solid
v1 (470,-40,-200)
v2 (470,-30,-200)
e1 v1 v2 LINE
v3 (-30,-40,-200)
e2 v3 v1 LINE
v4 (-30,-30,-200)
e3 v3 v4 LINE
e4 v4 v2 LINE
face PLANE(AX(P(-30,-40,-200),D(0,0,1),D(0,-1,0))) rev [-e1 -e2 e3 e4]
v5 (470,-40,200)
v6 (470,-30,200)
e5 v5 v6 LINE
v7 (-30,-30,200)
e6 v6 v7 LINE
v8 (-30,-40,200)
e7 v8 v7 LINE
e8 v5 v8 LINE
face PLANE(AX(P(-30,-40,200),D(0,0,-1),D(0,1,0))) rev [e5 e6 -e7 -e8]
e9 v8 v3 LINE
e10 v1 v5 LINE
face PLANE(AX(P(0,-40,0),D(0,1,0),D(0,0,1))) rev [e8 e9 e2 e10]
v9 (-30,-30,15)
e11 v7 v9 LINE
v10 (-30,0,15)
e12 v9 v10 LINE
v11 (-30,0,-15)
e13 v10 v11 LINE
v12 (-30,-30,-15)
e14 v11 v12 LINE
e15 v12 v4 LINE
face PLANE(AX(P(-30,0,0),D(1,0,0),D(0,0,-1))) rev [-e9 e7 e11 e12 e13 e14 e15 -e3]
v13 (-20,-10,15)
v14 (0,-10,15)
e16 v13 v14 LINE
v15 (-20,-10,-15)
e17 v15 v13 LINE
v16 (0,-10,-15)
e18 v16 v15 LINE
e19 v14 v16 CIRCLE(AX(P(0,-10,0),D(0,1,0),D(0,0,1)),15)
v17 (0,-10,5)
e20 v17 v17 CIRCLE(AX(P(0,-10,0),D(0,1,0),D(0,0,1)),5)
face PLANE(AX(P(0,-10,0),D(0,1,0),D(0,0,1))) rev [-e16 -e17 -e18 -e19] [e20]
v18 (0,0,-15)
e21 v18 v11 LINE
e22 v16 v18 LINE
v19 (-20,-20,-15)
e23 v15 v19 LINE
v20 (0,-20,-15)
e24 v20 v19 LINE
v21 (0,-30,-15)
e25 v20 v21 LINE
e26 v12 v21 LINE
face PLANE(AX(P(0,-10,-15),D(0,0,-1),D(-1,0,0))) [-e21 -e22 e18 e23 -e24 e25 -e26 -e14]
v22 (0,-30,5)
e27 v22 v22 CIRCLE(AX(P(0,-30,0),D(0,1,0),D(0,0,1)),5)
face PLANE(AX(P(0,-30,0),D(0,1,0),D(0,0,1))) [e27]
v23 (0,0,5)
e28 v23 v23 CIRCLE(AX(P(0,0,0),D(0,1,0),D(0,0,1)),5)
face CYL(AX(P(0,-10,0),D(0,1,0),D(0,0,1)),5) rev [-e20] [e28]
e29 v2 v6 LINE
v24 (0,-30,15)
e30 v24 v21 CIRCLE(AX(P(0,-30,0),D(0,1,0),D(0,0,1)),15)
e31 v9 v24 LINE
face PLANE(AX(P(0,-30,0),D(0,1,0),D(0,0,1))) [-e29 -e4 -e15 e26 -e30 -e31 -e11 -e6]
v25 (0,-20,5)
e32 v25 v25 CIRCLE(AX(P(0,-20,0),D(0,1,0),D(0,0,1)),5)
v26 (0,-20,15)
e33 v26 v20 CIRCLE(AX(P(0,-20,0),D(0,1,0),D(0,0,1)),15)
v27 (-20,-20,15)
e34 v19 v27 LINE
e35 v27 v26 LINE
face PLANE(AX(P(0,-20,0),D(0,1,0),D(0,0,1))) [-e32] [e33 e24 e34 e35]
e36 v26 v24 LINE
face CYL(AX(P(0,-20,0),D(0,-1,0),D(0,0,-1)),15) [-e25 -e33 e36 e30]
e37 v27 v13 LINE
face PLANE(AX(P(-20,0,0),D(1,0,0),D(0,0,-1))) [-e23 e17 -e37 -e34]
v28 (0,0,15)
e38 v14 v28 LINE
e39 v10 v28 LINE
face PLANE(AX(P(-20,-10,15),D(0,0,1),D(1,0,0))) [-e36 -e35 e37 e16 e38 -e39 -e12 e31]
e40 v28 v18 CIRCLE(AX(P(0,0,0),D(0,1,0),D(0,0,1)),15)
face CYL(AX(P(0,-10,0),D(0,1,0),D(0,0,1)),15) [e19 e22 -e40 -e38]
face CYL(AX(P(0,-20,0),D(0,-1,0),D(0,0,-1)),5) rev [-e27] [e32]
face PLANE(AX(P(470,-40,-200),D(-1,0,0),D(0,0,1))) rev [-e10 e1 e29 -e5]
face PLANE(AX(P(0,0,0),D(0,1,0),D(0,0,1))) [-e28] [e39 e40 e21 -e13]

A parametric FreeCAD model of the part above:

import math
import FreeCAD as App
import Part
import Sketcher
from FreeCAD import Vector
Q = App.Units.Quantity


def add_polygon(sketch, points):
    """Adds a closed chain of lines whose ends are joined by coincident constraints."""
    first, n = sketch.GeometryCount, len(points)
    for a, b in zip(points, points[1:] + points[:1]):
        sketch.addGeometry(Part.LineSegment(App.Vector(*a, 0), App.Vector(*b, 0)), False)
    for i in range(n):
        sketch.addConstraint(Sketcher.Constraint("Coincident", first + i, 2, first + (i + 1) % n, 1))

doc = App.newDocument("Part")
body = doc.addObject("PartDesign::Body", "Body")

# Sketch on XZ plane
sketch1 = doc.addObject("Sketcher::SketchObject", "Sketch")
body.addObject(sketch1)
sketch1.AttachmentSupport = (doc.XZ_Plane, [""])
sketch1.MapMode = "FlatFace"
sketch1.addGeometry([
    Part.LineSegment(Vector(0, -15, 0), Vector(-20, -15, 0)),  # 0
    Part.LineSegment(Vector(-20, -15, 0), Vector(-20, 15, 0)),  # 1
    Part.LineSegment(Vector(-20, 15, 0), Vector(0, 15, 0)),  # 2
    Part.ArcOfCircle(Part.Circle(Vector(0, 0, 0), Vector(0, 0, 1), 15), math.radians(-90), math.radians(90)),  # 3
    Part.Circle(Vector(0, 0, 0), Vector(0, 0, 1), 5),  # 4
], False)
sketch1.addConstraint([
    Sketcher.Constraint("Coincident", 0, 2, 1, 1),
    Sketcher.Constraint("Coincident", 1, 2, 2, 1),
    Sketcher.Constraint("Tangent", 2, 2, 3, 2),
    Sketcher.Constraint("Tangent", 3, 1, 0, 1),
    Sketcher.Constraint("Horizontal", 0),
    Sketcher.Constraint("Vertical", 1),
    Sketcher.Constraint("Horizontal", 2),
    Sketcher.Constraint("Coincident", 3, 3, -1, 1),
    Sketcher.Constraint("Coincident", 4, 3, -1, 1),
    Sketcher.Constraint("Diameter", 4, Q("10 mm")),
    Sketcher.Constraint("Radius", 3, Q("15 mm")),
    Sketcher.Constraint("DistanceX", 0, 2, 0, 1, Q("20 mm")),
])
pad1 = doc.addObject("PartDesign::Pad", "Pad")
body.addObject(pad1)
pad1.Profile = sketch1
pad1.Length = 10

# Sketch on YZ plane
sketch2 = doc.addObject("Sketcher::SketchObject", "Sketch001")
body.addObject(sketch2)
sketch2.AttachmentSupport = (doc.YZ_Plane, [""])
sketch2.MapMode = "FlatFace"
sketch2.AttachmentOffset = App.Placement(Vector(0, 0, -20), App.Rotation())
add_polygon(sketch2, [(0, -15), (-30, -15), (-30, 15), (0, 15)])  # lines 0-3
sketch2.addConstraint([
    Sketcher.Constraint("Horizontal", 0),
    Sketcher.Constraint("Vertical", 1),
    Sketcher.Constraint("Horizontal", 2),
    Sketcher.Constraint("Vertical", 3),
    Sketcher.Constraint("Symmetric", 2, 2, 3, 2, -1, 1),
    Sketcher.Constraint("Equal", 2, 1),
    Sketcher.Constraint("DistanceX", 0, 2, 0, 1, Q("30 mm")),
])
pad2 = doc.addObject("PartDesign::Pad", "Pad001")
body.addObject(pad2)
pad2.Profile = sketch2
pad2.Length = 10
pad2.Reversed = True

# Sketch on XZ plane
sketch3 = doc.addObject("Sketcher::SketchObject", "Sketch002")
body.addObject(sketch3)
sketch3.AttachmentSupport = (doc.XZ_Plane, [""])
sketch3.MapMode = "FlatFace"
sketch3.AttachmentOffset = App.Placement(Vector(0, 0, 20), App.Rotation())
sketch3.addGeometry([
    Part.LineSegment(Vector(0, -15, 0), Vector(-20, -15, 0)),  # 0
    Part.LineSegment(Vector(-20, -15, 0), Vector(-20, 15, 0)),  # 1
    Part.LineSegment(Vector(-20, 15, 0), Vector(0, 15, 0)),  # 2
    Part.ArcOfCircle(Part.Circle(Vector(0, 0, 0), Vector(0, 0, 1), 15), math.radians(-90), math.radians(90)),  # 3
    Part.Circle(Vector(0, 0, 0), Vector(0, 0, 1), 5),  # 4
], False)
sketch3.addConstraint([
    Sketcher.Constraint("Coincident", 0, 2, 1, 1),
    Sketcher.Constraint("Coincident", 1, 2, 2, 1),
    Sketcher.Constraint("Tangent", 2, 2, 3, 2),
    Sketcher.Constraint("Tangent", 3, 1, 0, 1),
    Sketcher.Constraint("Horizontal", 0),
    Sketcher.Constraint("Vertical", 1),
    Sketcher.Constraint("Horizontal", 2),
    Sketcher.Constraint("Coincident", 3, 3, -1, 1),
    Sketcher.Constraint("Coincident", 4, 3, -1, 1),
    Sketcher.Constraint("Diameter", 4, Q("10 mm")),
    Sketcher.Constraint("Radius", 3, Q("15 mm")),
    Sketcher.Constraint("DistanceX", 0, 2, 0, 1, Q("20 mm")),
])
pad3 = doc.addObject("PartDesign::Pad", "Pad002")
body.addObject(pad3)
pad3.Profile = sketch3
pad3.Length = 10

# Sketch on XZ plane
sketch4 = doc.addObject("Sketcher::SketchObject", "Sketch003")
body.addObject(sketch4)
sketch4.AttachmentSupport = (doc.XZ_Plane, [""])
sketch4.MapMode = "FlatFace"
sketch4.AttachmentOffset = App.Placement(Vector(0, 0, 30), App.Rotation())
add_polygon(sketch4, [(-30, 200), (-30, -200), (470, -200), (470, 200)])  # lines 0-3
sketch4.addConstraint([
    Sketcher.Constraint("Vertical", 0),
    Sketcher.Constraint("Horizontal", 1),
    Sketcher.Constraint("Vertical", 2),
    Sketcher.Constraint("Horizontal", 3),
    Sketcher.Constraint("DistanceX", 1, 1, 1, 2, Q("500 mm")),
    Sketcher.Constraint("DistanceY", 0, 2, 0, 1, Q("400 mm")),
    Sketcher.Constraint("DistanceX", 0, 2, -1, 1, Q("30 mm")),
    Sketcher.Constraint("DistanceY", 0, 2, -1, 1, Q("200 mm")),
])
pad4 = doc.addObject("PartDesign::Pad", "Pad003")
body.addObject(pad4)
pad4.Profile = sketch4
pad4.Length = 10

doc.recompute()
